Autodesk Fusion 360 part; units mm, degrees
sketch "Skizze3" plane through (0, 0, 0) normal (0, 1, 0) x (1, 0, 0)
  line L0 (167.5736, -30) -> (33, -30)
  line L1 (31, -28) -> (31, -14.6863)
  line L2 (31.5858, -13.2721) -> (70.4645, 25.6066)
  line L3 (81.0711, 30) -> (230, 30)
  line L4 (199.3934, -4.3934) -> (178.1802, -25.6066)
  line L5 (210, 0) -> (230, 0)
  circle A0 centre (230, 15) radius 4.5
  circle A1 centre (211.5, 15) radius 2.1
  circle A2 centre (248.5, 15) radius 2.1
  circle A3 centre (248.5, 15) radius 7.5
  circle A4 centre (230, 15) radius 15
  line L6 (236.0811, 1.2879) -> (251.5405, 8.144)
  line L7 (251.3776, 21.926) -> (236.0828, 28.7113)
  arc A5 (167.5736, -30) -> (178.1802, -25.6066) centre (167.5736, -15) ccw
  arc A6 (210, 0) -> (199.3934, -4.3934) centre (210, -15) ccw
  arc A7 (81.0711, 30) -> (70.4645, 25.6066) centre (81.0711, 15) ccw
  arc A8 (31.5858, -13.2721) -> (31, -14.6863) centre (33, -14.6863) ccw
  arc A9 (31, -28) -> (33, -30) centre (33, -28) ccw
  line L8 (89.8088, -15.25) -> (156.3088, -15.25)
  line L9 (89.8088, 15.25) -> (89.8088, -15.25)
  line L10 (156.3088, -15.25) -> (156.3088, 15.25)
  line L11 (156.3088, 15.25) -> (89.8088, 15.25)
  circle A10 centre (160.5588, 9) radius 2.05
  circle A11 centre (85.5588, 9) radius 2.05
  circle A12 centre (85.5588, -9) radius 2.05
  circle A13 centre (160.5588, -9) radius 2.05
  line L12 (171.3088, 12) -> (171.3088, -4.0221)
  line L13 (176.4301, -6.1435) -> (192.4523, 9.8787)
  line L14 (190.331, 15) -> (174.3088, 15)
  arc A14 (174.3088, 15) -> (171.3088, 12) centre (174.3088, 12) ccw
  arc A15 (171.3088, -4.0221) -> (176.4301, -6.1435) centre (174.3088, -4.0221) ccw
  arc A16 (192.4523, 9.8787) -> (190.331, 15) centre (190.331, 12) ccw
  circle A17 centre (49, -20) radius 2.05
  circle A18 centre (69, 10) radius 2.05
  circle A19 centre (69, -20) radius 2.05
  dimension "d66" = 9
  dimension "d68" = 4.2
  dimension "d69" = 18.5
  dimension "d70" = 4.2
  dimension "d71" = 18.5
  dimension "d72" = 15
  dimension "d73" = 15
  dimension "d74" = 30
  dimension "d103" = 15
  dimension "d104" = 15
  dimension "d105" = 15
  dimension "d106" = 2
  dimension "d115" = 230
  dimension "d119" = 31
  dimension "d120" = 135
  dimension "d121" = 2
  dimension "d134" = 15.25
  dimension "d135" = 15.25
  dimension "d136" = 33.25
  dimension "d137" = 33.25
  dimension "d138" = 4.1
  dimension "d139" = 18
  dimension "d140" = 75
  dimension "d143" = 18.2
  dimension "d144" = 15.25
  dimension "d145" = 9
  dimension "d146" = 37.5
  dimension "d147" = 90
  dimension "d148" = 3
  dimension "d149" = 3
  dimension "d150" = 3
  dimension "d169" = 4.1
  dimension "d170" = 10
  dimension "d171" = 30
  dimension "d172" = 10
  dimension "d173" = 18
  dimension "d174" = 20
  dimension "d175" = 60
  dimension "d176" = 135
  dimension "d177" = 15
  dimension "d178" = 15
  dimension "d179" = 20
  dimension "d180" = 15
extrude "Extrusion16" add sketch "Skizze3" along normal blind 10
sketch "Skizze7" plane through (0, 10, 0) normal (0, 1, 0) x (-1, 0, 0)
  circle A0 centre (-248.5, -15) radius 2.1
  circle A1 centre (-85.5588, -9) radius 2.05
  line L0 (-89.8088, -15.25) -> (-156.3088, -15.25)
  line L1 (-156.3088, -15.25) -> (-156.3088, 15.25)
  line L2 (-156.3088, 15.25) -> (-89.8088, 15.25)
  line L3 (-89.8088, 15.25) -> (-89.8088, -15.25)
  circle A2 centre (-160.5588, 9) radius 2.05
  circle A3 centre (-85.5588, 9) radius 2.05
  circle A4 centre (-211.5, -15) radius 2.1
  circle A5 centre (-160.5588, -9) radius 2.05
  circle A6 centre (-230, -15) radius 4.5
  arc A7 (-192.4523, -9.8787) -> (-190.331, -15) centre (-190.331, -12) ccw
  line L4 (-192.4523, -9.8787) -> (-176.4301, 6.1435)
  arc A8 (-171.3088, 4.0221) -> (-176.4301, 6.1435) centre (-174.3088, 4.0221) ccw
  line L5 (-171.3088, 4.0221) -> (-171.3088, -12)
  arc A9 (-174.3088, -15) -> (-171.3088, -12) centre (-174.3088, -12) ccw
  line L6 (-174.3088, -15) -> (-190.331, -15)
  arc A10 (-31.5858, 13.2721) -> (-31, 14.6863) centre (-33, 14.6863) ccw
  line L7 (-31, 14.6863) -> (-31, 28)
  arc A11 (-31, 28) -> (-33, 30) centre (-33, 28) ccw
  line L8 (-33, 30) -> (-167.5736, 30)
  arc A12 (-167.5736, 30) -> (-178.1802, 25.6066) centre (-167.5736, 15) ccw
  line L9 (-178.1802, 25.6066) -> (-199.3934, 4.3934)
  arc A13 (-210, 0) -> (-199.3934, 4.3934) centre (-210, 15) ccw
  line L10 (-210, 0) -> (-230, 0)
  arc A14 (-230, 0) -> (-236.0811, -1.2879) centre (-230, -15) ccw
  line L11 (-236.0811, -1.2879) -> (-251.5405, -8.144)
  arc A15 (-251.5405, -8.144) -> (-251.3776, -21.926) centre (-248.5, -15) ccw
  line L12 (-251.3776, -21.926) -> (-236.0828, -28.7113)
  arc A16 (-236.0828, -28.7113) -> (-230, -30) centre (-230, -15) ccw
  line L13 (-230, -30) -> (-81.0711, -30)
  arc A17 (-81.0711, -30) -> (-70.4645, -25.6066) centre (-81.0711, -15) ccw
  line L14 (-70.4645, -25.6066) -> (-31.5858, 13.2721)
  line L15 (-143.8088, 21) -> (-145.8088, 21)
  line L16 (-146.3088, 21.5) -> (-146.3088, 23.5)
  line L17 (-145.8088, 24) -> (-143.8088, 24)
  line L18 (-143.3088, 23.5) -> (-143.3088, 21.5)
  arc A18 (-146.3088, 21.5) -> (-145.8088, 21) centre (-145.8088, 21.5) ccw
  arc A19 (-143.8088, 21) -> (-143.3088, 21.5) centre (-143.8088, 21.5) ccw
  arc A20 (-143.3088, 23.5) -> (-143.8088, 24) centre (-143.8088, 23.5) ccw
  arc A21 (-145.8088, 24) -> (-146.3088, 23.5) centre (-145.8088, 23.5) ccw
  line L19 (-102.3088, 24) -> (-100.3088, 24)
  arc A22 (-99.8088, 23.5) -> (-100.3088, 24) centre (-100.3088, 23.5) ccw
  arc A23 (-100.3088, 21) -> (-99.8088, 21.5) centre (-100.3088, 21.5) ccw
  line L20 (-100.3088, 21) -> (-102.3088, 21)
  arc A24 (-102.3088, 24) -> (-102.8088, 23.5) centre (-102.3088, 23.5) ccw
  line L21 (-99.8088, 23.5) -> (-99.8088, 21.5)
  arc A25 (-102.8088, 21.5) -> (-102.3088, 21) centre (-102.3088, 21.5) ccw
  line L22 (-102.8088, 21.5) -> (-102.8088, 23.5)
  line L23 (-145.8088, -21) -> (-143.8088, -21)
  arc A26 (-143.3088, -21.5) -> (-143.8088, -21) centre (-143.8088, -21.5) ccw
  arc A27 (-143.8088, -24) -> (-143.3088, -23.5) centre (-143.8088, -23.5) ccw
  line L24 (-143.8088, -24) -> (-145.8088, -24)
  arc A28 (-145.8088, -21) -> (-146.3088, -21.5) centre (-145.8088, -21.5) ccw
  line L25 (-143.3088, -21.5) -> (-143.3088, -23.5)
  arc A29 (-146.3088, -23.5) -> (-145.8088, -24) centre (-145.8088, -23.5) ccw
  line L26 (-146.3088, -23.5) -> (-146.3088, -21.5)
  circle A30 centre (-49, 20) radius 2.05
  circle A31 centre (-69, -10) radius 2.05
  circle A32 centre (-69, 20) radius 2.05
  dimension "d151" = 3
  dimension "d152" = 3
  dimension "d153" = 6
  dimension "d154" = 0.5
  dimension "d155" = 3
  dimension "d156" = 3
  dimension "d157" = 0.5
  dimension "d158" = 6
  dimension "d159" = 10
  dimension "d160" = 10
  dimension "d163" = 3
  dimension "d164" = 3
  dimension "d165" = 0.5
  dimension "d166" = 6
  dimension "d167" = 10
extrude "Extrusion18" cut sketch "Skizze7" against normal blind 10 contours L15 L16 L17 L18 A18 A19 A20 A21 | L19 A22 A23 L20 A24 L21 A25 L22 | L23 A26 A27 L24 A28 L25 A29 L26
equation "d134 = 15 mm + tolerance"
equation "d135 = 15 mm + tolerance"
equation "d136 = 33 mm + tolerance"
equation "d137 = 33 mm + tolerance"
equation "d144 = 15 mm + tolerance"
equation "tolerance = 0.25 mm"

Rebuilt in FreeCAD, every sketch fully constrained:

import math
import FreeCAD as App
import Part
import Sketcher
from FreeCAD import Vector
Q = App.Units.Quantity

doc = App.newDocument("Part")
body = doc.addObject("PartDesign::Body", "Body")

sketch1 = body.newObject("Sketcher::SketchObject", "Sketch")
sketch1.AttachmentSupport = (doc.getObject("XZ_Plane"), [""])
sketch1.MapMode = "FlatFace"
sketch1.addGeometry(Part.LineSegment(Vector(33, 30, 0), Vector(167.5736, 30, 0)), False)
sketch1.addGeometry(Part.ArcOfCircle(Part.Circle(Vector(167.5736, 15, 0), Vector(0, 0, 1), 15), math.radians(45), math.radians(90)), False)
sketch1.addGeometry(Part.LineSegment(Vector(178.1802, 25.6066, 0), Vector(199.3934, 4.3934, 0)), False)
sketch1.addGeometry(Part.ArcOfCircle(Part.Circle(Vector(210, 15, 0), Vector(0, 0, 1), 15), math.radians(-135), math.radians(-90)), False)
sketch1.addGeometry(Part.LineSegment(Vector(210, 0, 0), Vector(230, 0, 0)), False)
sketch1.addGeometry(Part.ArcOfCircle(Part.Circle(Vector(230, -15, 0), Vector(0, 0, 1), 15), math.radians(66.083469), math.radians(90)), False)
sketch1.addGeometry(Part.LineSegment(Vector(236.0811, -1.2879, 0), Vector(251.5405, -8.144, 0)), False)
sketch1.addGeometry(Part.ArcOfCircle(Part.Circle(Vector(248.5, -15, 0), Vector(0, 0, 1), 7.5), math.radians(-67.438195), math.radians(66.083663)), False)
sketch1.addGeometry(Part.LineSegment(Vector(251.3776, -21.926, 0), Vector(236.0828, -28.7113, 0)), False)
sketch1.addGeometry(Part.ArcOfCircle(Part.Circle(Vector(230, -15, 0), Vector(0, 0, 1), 15), math.radians(-90), math.radians(-66.076294)), False)
sketch1.addGeometry(Part.LineSegment(Vector(230, -30, 0), Vector(81.0711, -30, 0)), False)
sketch1.addGeometry(Part.ArcOfCircle(Part.Circle(Vector(81.0711, -15, 0), Vector(0, 0, 1), 15), math.radians(-135), math.radians(-90)), False)
sketch1.addGeometry(Part.LineSegment(Vector(70.4645, -25.6066, 0), Vector(31.5858, 13.2721, 0)), False)
sketch1.addGeometry(Part.ArcOfCircle(Part.Circle(Vector(33, 14.6863, 0), Vector(0, 0, 1), 1.999981), math.radians(180), math.radians(225)), False)
sketch1.addGeometry(Part.LineSegment(Vector(31, 14.6863, 0), Vector(31, 28, 0)), False)
sketch1.addGeometry(Part.ArcOfCircle(Part.Circle(Vector(33, 28, 0), Vector(0, 0, 1), 2), math.radians(90), math.radians(180)), False)
sketch1.addGeometry(Part.Circle(Vector(49, 20, 0), Vector(0, 0, 1), 2.05), False)
sketch1.addGeometry(Part.Circle(Vector(69, 20, 0), Vector(0, 0, 1), 2.05), False)
sketch1.addGeometry(Part.Circle(Vector(85.5588, 9, 0), Vector(0, 0, 1), 2.05), False)
sketch1.addGeometry(Part.LineSegment(Vector(156.3088, 15.25, 0), Vector(89.8088, 15.25, 0)), False)
sketch1.addGeometry(Part.LineSegment(Vector(89.8088, 15.25, 0), Vector(89.8088, -15.25, 0)), False)
sketch1.addGeometry(Part.LineSegment(Vector(89.8088, -15.25, 0), Vector(156.3088, -15.25, 0)), False)
sketch1.addGeometry(Part.LineSegment(Vector(156.3088, -15.25, 0), Vector(156.3088, 15.25, 0)), False)
sketch1.addGeometry(Part.Circle(Vector(160.5588, 9, 0), Vector(0, 0, 1), 2.05), False)
sketch1.addGeometry(Part.Circle(Vector(69, -10, 0), Vector(0, 0, 1), 2.05), False)
sketch1.addGeometry(Part.Circle(Vector(85.5588, -9, 0), Vector(0, 0, 1), 2.05), False)
sketch1.addGeometry(Part.LineSegment(Vector(171.3088, 4.0221, 0), Vector(171.3088, -12, 0)), False)
sketch1.addGeometry(Part.ArcOfCircle(Part.Circle(Vector(174.3088, -12, 0), Vector(0, 0, 1), 3), math.radians(180), math.radians(270)), False)
sketch1.addGeometry(Part.LineSegment(Vector(174.3088, -15, 0), Vector(190.331, -15, 0)), False)
sketch1.addGeometry(Part.ArcOfCircle(Part.Circle(Vector(190.331, -12, 0), Vector(0, 0, 1), 2.999971), math.radians(-90), math.radians(45)), False)
sketch1.addGeometry(Part.LineSegment(Vector(192.4523, -9.8787, 0), Vector(176.4301, 6.1435, 0)), False)
sketch1.addGeometry(Part.ArcOfCircle(Part.Circle(Vector(174.3088, 4.0221, 0), Vector(0, 0, 1), 3), math.radians(45.00135), math.radians(180)), False)
sketch1.addGeometry(Part.Circle(Vector(160.5588, -9, 0), Vector(0, 0, 1), 2.05), False)
sketch1.addGeometry(Part.Circle(Vector(211.5, -15, 0), Vector(0, 0, 1), 2.1), False)
sketch1.addGeometry(Part.Circle(Vector(230, -15, 0), Vector(0, 0, 1), 4.5), False)
sketch1.addGeometry(Part.Circle(Vector(248.5, -15, 0), Vector(0, 0, 1), 2.1), False)
sketch1.addConstraint(Sketcher.Constraint("Tangent", 0, 2, 1, 2))
sketch1.addConstraint(Sketcher.Constraint("Tangent", 1, 1, 2, 1))
sketch1.addConstraint(Sketcher.Constraint("Tangent", 2, 2, 3, 1))
sketch1.addConstraint(Sketcher.Constraint("Tangent", 3, 2, 4, 1))
sketch1.addConstraint(Sketcher.Constraint("Tangent", 4, 2, 5, 2))
sketch1.addConstraint(Sketcher.Constraint("Tangent", 5, 1, 6, 1))
sketch1.addConstraint(Sketcher.Constraint("Tangent", 6, 2, 7, 2))
sketch1.addConstraint(Sketcher.Constraint("Coincident", 7, 1, 8, 1))
sketch1.addConstraint(Sketcher.Constraint("Tangent", 8, 2, 9, 2))
sketch1.addConstraint(Sketcher.Constraint("Tangent", 9, 1, 10, 1))
sketch1.addConstraint(Sketcher.Constraint("Tangent", 10, 2, 11, 2))
sketch1.addConstraint(Sketcher.Constraint("Tangent", 11, 1, 12, 1))
sketch1.addConstraint(Sketcher.Constraint("Tangent", 12, 2, 13, 2))
sketch1.addConstraint(Sketcher.Constraint("Tangent", 13, 1, 14, 1))
sketch1.addConstraint(Sketcher.Constraint("Tangent", 14, 2, 15, 2))
sketch1.addConstraint(Sketcher.Constraint("Tangent", 15, 1, 0, 1))
sketch1.addConstraint(Sketcher.Constraint("Coincident", 19, 2, 20, 1))
sketch1.addConstraint(Sketcher.Constraint("Coincident", 20, 2, 21, 1))
sketch1.addConstraint(Sketcher.Constraint("Coincident", 21, 2, 22, 1))
sketch1.addConstraint(Sketcher.Constraint("Coincident", 22, 2, 19, 1))
sketch1.addConstraint(Sketcher.Constraint("Tangent", 26, 2, 27, 1))
sketch1.addConstraint(Sketcher.Constraint("Tangent", 27, 2, 28, 1))
sketch1.addConstraint(Sketcher.Constraint("Tangent", 28, 2, 29, 1))
sketch1.addConstraint(Sketcher.Constraint("Tangent", 29, 2, 30, 1))
sketch1.addConstraint(Sketcher.Constraint("Tangent", 30, 2, 31, 1))
sketch1.addConstraint(Sketcher.Constraint("Tangent", 31, 2, 26, 1))
sketch1.addConstraint(Sketcher.Constraint("Horizontal", 0))
sketch1.addConstraint(Sketcher.Constraint("Horizontal", 4))
sketch1.addConstraint(Sketcher.Constraint("Horizontal", 10))
sketch1.addConstraint(Sketcher.Constraint("Vertical", 14))
sketch1.addConstraint(Sketcher.Constraint("Horizontal", 19))
sketch1.addConstraint(Sketcher.Constraint("Vertical", 20))
sketch1.addConstraint(Sketcher.Constraint("Horizontal", 21))
sketch1.addConstraint(Sketcher.Constraint("Vertical", 22))
sketch1.addConstraint(Sketcher.Constraint("Vertical", 26))
sketch1.addConstraint(Sketcher.Constraint("Horizontal", 28))
sketch1.addConstraint(Sketcher.Constraint("Coincident", 9, 3, 5, 3))
sketch1.addConstraint(Sketcher.Constraint("Coincident", 34, 3, 5, 3))
sketch1.addConstraint(Sketcher.Constraint("Coincident", 35, 3, 7, 3))
sketch1.addConstraint(Sketcher.Constraint("Equal", 1, 3))
sketch1.addConstraint(Sketcher.Constraint("Equal", 3, 5))
sketch1.addConstraint(Sketcher.Constraint("Equal", 5, 9))
sketch1.addConstraint(Sketcher.Constraint("Equal", 9, 11))
sketch1.addConstraint(Sketcher.Constraint("Equal", 13, 15))
sketch1.addConstraint(Sketcher.Constraint("Equal", 16, 17))
sketch1.addConstraint(Sketcher.Constraint("Equal", 17, 18))
sketch1.addConstraint(Sketcher.Constraint("Equal", 18, 23))
sketch1.addConstraint(Sketcher.Constraint("Equal", 23, 24))
sketch1.addConstraint(Sketcher.Constraint("Equal", 24, 25))
sketch1.addConstraint(Sketcher.Constraint("Equal", 27, 29))
sketch1.addConstraint(Sketcher.Constraint("Equal", 29, 31))
sketch1.addConstraint(Sketcher.Constraint("Equal", 25, 32))
sketch1.addConstraint(Sketcher.Constraint("Equal", 33, 35))
sketch1.addConstraint(Sketcher.Constraint("Symmetric", 18, 3, 25, 3, -1))
sketch1.addConstraint(Sketcher.Constraint("Symmetric", 23, 3, 32, 3, -1))
sketch1.addConstraint(Sketcher.Constraint("PointOnObject", 3, 2, -1))
sketch1.addConstraint(Sketcher.Constraint("Parallel", 2, 12))
sketch1.addConstraint(Sketcher.Constraint("Parallel", 12, 30))
sketch1.addConstraint(Sketcher.Constraint("Horizontal", 1, 3, 3, 3))
sketch1.addConstraint(Sketcher.Constraint("Horizontal", 5, 3, 7, 3))
sketch1.addConstraint(Sketcher.Constraint("Horizontal", 16, 3, 17, 3))
sketch1.addConstraint(Sketcher.Constraint("Horizontal", 18, 3, 23, 3))
sketch1.addConstraint(Sketcher.Constraint("Horizontal", 11, 3, 33, 3))
sketch1.addConstraint(Sketcher.Constraint("Horizontal", 35, 3, 27, 2))
sketch1.addConstraint(Sketcher.Constraint("Vertical", 17, 3, 24, 3))
sketch1.addConstraint(Sketcher.Constraint("Equal", 28, 26))
sketch1.addConstraint(Sketcher.Constraint("Diameter", 34, Q("9 mm")))
sketch1.addConstraint(Sketcher.Constraint("Radius", 1, Q("15 mm")))
sketch1.addConstraint(Sketcher.Constraint("Radius", 13, Q("2 mm")))
sketch1.addConstraint(Sketcher.Constraint("Radius", 27, Q("3 mm")))
sketch1.addConstraint(Sketcher.Constraint("Diameter", 16, Q("4.1 mm")))
sketch1.addConstraint(Sketcher.Constraint("Diameter", 33, Q("4.2 mm")))
sketch1.addConstraint(Sketcher.Constraint("Radius", 7, Q("7.5 mm")))
sketch1.addConstraint(Sketcher.Constraint("DistanceX", 4, 1, 4, 2, Q("20 mm")))
sketch1.addConstraint(Sketcher.Constraint("DistanceX", -1, 1, 5, 3, Q("230 mm")))
sketch1.addConstraint(Sketcher.Constraint("DistanceY", -1, 1, 16, 3, Q("20 mm")))
sketch1.addConstraint(Sketcher.Constraint("DistanceY", -1, 1, 18, 3, Q("9 mm")))
sketch1.addConstraint(Sketcher.Constraint("DistanceY", 24, 3, -1, 1, Q("10 mm")))
sketch1.addConstraint(Sketcher.Constraint("DistanceX", -1, 1, 13, 1, Q("31 mm")))
sketch1.addConstraint(Sketcher.Constraint("DistanceX", 16, 3, 17, 3, Q("20 mm")))
sketch1.addConstraint(Sketcher.Constraint("DistanceX", 18, 3, 23, 3, Q("75 mm")))
sketch1.addConstraint(Sketcher.Constraint("DistanceX", 13, 1, 16, 3, Q("18 mm")))
sketch1.addConstraint(Sketcher.Constraint("DistanceX", 21, 2, 27, 3, Q("18 mm")))
sketch1.addConstraint(Sketcher.Constraint("DistanceX", 5, 3, 7, 3, Q("18.5 mm")))
sketch1.addConstraint(Sketcher.Constraint("DistanceX", 33, 3, 5, 3, Q("18.5 mm")))
sketch1.addConstraint(Sketcher.Constraint("DistanceY", -1, 1, 19, 2, Q("15.25 mm")))
sketch1.addConstraint(Sketcher.Constraint("DistanceY", 20, 2, -1, 1, Q("15.25 mm")))
sketch1.addConstraint(Sketcher.Constraint("DistanceX", 19, 2, 19, 1, Q("66.5 mm")))
sketch1.addConstraint(Sketcher.Constraint("DistanceX", 10, 2, 10, 1, Q("148.929 mm")))
sketch1.addConstraint(Sketcher.Constraint("DistanceY", 26, 2, 26, 1, Q("16.022 mm")))
sketch1.addConstraint(Sketcher.Constraint("DistanceX", -1, 1, 30, 2, Q("176.43 mm")))
sketch1.addConstraint(Sketcher.Constraint("DistanceX", 23, 3, 27, 3, Q("13.75 mm")))
sketch1.addConstraint(Sketcher.Constraint("DistanceY", 7, 1, -1, 1, Q("21.926 mm")))
pad1 = body.newObject("PartDesign::Pad", "Pad")
pad1.Profile = sketch1
pad1.Length = 10
pad1.Reversed = True

sketch2 = body.newObject("Sketcher::SketchObject", "Sketch001")
sketch2.AttachmentSupport = (doc.getObject("XZ_Plane"), [""])
sketch2.MapMode = "FlatFace"
sketch2.AttachmentOffset = App.Placement(Vector(0, 0, -10), App.Rotation())
sketch2.addGeometry(Part.LineSegment(Vector(145.8088, 21, 0), Vector(143.8088, 21, 0)), False)
sketch2.addGeometry(Part.ArcOfCircle(Part.Circle(Vector(143.8088, 21.5, 0), Vector(0, 0, 1), 0.5), math.radians(180), math.radians(270)), False)
sketch2.addGeometry(Part.LineSegment(Vector(143.3088, 21.5, 0), Vector(143.3088, 23.5, 0)), False)
sketch2.addGeometry(Part.ArcOfCircle(Part.Circle(Vector(143.8088, 23.5, 0), Vector(0, 0, 1), 0.5), math.radians(90), math.radians(180)), False)
sketch2.addGeometry(Part.LineSegment(Vector(143.8088, 24, 0), Vector(145.8088, 24, 0)), False)
sketch2.addGeometry(Part.ArcOfCircle(Part.Circle(Vector(145.8088, 23.5, 0), Vector(0, 0, 1), 0.5), math.radians(0), math.radians(90)), False)
sketch2.addGeometry(Part.LineSegment(Vector(146.3088, 23.5, 0), Vector(146.3088, 21.5, 0)), False)
sketch2.addGeometry(Part.ArcOfCircle(Part.Circle(Vector(145.8088, 21.5, 0), Vector(0, 0, 1), 0.5), math.radians(-90), math.radians(0)), False)
sketch2.addGeometry(Part.LineSegment(Vector(100.3088, 24, 0), Vector(102.3088, 24, 0)), False)
sketch2.addGeometry(Part.ArcOfCircle(Part.Circle(Vector(102.3088, 23.5, 0), Vector(0, 0, 1), 0.5), math.radians(0), math.radians(90)), False)
sketch2.addGeometry(Part.LineSegment(Vector(102.8088, 23.5, 0), Vector(102.8088, 21.5, 0)), False)
sketch2.addGeometry(Part.ArcOfCircle(Part.Circle(Vector(102.3088, 21.5, 0), Vector(0, 0, 1), 0.5), math.radians(-90), math.radians(0)), False)
sketch2.addGeometry(Part.LineSegment(Vector(102.3088, 21, 0), Vector(100.3088, 21, 0)), False)
sketch2.addGeometry(Part.ArcOfCircle(Part.Circle(Vector(100.3088, 21.5, 0), Vector(0, 0, 1), 0.5), math.radians(180), math.radians(270)), False)
sketch2.addGeometry(Part.LineSegment(Vector(99.8088, 21.5, 0), Vector(99.8088, 23.5, 0)), False)
sketch2.addGeometry(Part.ArcOfCircle(Part.Circle(Vector(100.3088, 23.5, 0), Vector(0, 0, 1), 0.5), math.radians(90), math.radians(180)), False)
sketch2.addGeometry(Part.LineSegment(Vector(143.8088, -21, 0), Vector(145.8088, -21, 0)), False)
sketch2.addGeometry(Part.ArcOfCircle(Part.Circle(Vector(145.8088, -21.5, 0), Vector(0, 0, 1), 0.5), math.radians(0), math.radians(90)), False)
sketch2.addGeometry(Part.LineSegment(Vector(146.3088, -21.5, 0), Vector(146.3088, -23.5, 0)), False)
sketch2.addGeometry(Part.ArcOfCircle(Part.Circle(Vector(145.8088, -23.5, 0), Vector(0, 0, 1), 0.5), math.radians(-90), math.radians(0)), False)
sketch2.addGeometry(Part.LineSegment(Vector(145.8088, -24, 0), Vector(143.8088, -24, 0)), False)
sketch2.addGeometry(Part.ArcOfCircle(Part.Circle(Vector(143.8088, -23.5, 0), Vector(0, 0, 1), 0.5), math.radians(180), math.radians(270)), False)
sketch2.addGeometry(Part.LineSegment(Vector(143.3088, -23.5, 0), Vector(143.3088, -21.5, 0)), False)
sketch2.addGeometry(Part.ArcOfCircle(Part.Circle(Vector(143.8088, -21.5, 0), Vector(0, 0, 1), 0.5), math.radians(90), math.radians(180)), False)
sketch2.addConstraint(Sketcher.Constraint("Tangent", 0, 2, 1, 2))
sketch2.addConstraint(Sketcher.Constraint("Tangent", 1, 1, 2, 1))
sketch2.addConstraint(Sketcher.Constraint("Tangent", 2, 2, 3, 2))
sketch2.addConstraint(Sketcher.Constraint("Tangent", 3, 1, 4, 1))
sketch2.addConstraint(Sketcher.Constraint("Tangent", 4, 2, 5, 2))
sketch2.addConstraint(Sketcher.Constraint("Tangent", 5, 1, 6, 1))
sketch2.addConstraint(Sketcher.Constraint("Tangent", 6, 2, 7, 2))
sketch2.addConstraint(Sketcher.Constraint("Tangent", 7, 1, 0, 1))
sketch2.addConstraint(Sketcher.Constraint("Tangent", 8, 2, 9, 2))
sketch2.addConstraint(Sketcher.Constraint("Tangent", 9, 1, 10, 1))
sketch2.addConstraint(Sketcher.Constraint("Tangent", 10, 2, 11, 2))
sketch2.addConstraint(Sketcher.Constraint("Tangent", 11, 1, 12, 1))
sketch2.addConstraint(Sketcher.Constraint("Tangent", 12, 2, 13, 2))
sketch2.addConstraint(Sketcher.Constraint("Tangent", 13, 1, 14, 1))
sketch2.addConstraint(Sketcher.Constraint("Tangent", 14, 2, 15, 2))
sketch2.addConstraint(Sketcher.Constraint("Tangent", 15, 1, 8, 1))
sketch2.addConstraint(Sketcher.Constraint("Tangent", 16, 2, 17, 2))
sketch2.addConstraint(Sketcher.Constraint("Tangent", 17, 1, 18, 1))
sketch2.addConstraint(Sketcher.Constraint("Tangent", 18, 2, 19, 2))
sketch2.addConstraint(Sketcher.Constraint("Tangent", 19, 1, 20, 1))
sketch2.addConstraint(Sketcher.Constraint("Tangent", 20, 2, 21, 2))
sketch2.addConstraint(Sketcher.Constraint("Tangent", 21, 1, 22, 1))
sketch2.addConstraint(Sketcher.Constraint("Tangent", 22, 2, 23, 2))
sketch2.addConstraint(Sketcher.Constraint("Tangent", 23, 1, 16, 1))
sketch2.addConstraint(Sketcher.Constraint("Horizontal", 0))
sketch2.addConstraint(Sketcher.Constraint("Vertical", 2))
sketch2.addConstraint(Sketcher.Constraint("Horizontal", 4))
sketch2.addConstraint(Sketcher.Constraint("Vertical", 6))
sketch2.addConstraint(Sketcher.Constraint("Horizontal", 8))
sketch2.addConstraint(Sketcher.Constraint("Vertical", 10))
sketch2.addConstraint(Sketcher.Constraint("Horizontal", 12))
sketch2.addConstraint(Sketcher.Constraint("Vertical", 14))
sketch2.addConstraint(Sketcher.Constraint("Horizontal", 16))
sketch2.addConstraint(Sketcher.Constraint("Vertical", 18))
sketch2.addConstraint(Sketcher.Constraint("Horizontal", 20))
sketch2.addConstraint(Sketcher.Constraint("Vertical", 22))
sketch2.addConstraint(Sketcher.Constraint("Equal", 1, 3))
sketch2.addConstraint(Sketcher.Constraint("Equal", 3, 5))
sketch2.addConstraint(Sketcher.Constraint("Equal", 5, 7))
sketch2.addConstraint(Sketcher.Constraint("Equal", 7, 9))
sketch2.addConstraint(Sketcher.Constraint("Equal", 9, 11))
sketch2.addConstraint(Sketcher.Constraint("Equal", 11, 13))
sketch2.addConstraint(Sketcher.Constraint("Equal", 13, 15))
sketch2.addConstraint(Sketcher.Constraint("Equal", 15, 17))
sketch2.addConstraint(Sketcher.Constraint("Equal", 17, 19))
sketch2.addConstraint(Sketcher.Constraint("Equal", 19, 21))
sketch2.addConstraint(Sketcher.Constraint("Equal", 21, 23))
sketch2.addConstraint(Sketcher.Constraint("Symmetric", 7, 3, 17, 3, -1))
sketch2.addConstraint(Sketcher.Constraint("Symmetric", 3, 3, 21, 3, -1))
sketch2.addConstraint(Sketcher.Constraint("Horizontal", 5, 3, 9, 3))
sketch2.addConstraint(Sketcher.Constraint("Horizontal", 7, 3, 11, 3))
sketch2.addConstraint(Sketcher.Constraint("Equal", 4, 8))
sketch2.addConstraint(Sketcher.Constraint("Equal", 20, 2))
sketch2.addConstraint(Sketcher.Constraint("Radius", 1, Q("0.5 mm")))
sketch2.addConstraint(Sketcher.Constraint("DistanceX", 0, 2, 0, 1, Q("2 mm")))
sketch2.addConstraint(Sketcher.Constraint("DistanceY", -1, 1, 0, 2, Q("21 mm")))
sketch2.addConstraint(Sketcher.Constraint("DistanceX", 8, 2, 2, 2, Q("41 mm")))
sketch2.addConstraint(Sketcher.Constraint("DistanceX", -1, 1, 1, 3, Q("143.8088 mm")))
pocket1 = body.newObject("PartDesign::Pocket", "Pocket")
pocket1.Profile = sketch2
pocket1.Length = 10
pocket1.Reversed = True

doc.recompute()
